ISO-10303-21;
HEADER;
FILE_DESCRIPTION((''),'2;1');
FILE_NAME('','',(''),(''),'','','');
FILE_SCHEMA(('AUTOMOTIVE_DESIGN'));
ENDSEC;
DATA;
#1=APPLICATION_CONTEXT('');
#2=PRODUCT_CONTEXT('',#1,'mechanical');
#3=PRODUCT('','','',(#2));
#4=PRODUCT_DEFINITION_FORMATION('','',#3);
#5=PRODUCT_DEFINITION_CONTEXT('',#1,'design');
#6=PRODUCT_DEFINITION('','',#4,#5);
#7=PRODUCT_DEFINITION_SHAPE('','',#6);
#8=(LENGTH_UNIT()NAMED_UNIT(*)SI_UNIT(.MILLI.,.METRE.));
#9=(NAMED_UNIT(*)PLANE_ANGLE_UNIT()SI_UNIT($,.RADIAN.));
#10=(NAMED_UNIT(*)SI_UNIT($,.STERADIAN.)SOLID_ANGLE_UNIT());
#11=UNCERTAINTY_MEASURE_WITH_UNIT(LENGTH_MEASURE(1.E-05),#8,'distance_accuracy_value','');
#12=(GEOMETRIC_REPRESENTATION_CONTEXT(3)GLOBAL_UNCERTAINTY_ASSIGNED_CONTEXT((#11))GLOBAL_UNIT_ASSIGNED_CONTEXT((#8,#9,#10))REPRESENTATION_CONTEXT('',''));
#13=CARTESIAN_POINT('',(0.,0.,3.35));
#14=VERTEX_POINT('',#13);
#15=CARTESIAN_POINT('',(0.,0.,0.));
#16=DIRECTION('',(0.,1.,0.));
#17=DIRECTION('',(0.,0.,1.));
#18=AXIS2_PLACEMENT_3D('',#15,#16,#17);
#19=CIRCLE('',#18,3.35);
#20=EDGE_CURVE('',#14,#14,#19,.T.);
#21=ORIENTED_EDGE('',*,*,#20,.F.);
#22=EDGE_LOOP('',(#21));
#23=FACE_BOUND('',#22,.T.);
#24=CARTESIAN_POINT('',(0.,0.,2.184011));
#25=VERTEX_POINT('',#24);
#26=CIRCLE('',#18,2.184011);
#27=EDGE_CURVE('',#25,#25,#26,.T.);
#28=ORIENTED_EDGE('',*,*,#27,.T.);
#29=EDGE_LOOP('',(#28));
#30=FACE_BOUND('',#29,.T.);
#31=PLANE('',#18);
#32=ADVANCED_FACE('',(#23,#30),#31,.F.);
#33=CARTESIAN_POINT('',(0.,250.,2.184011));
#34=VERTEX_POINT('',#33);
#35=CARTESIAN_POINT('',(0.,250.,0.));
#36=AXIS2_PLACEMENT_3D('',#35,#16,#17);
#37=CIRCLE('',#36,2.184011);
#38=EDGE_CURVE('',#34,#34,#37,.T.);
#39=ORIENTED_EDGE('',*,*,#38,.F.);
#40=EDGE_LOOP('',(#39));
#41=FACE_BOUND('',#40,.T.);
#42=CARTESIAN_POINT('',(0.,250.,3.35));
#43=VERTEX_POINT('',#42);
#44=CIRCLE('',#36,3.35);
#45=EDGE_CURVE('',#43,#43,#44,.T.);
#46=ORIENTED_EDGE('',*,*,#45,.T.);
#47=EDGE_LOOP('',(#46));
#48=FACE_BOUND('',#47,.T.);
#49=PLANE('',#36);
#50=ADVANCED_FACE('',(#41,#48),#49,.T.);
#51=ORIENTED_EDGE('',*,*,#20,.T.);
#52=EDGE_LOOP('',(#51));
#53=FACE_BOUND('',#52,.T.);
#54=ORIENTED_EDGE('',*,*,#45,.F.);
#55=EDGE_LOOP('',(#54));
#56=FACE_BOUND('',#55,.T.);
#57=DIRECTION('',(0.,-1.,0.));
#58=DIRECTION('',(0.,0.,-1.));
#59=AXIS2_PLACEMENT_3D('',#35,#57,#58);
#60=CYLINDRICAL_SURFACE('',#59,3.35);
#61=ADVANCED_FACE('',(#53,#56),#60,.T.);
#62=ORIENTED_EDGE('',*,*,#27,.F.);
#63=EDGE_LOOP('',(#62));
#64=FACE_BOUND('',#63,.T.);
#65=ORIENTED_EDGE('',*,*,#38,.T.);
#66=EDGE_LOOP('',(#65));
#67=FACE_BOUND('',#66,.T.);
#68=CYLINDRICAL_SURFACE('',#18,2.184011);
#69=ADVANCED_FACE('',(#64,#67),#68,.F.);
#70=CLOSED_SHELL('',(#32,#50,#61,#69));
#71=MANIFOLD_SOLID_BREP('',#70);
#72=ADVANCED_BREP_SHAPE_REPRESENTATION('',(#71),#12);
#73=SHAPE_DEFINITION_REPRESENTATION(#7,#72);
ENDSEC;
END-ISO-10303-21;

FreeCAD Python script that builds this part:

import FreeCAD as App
import Part
import Sketcher
Q = App.Units.Quantity

doc = App.newDocument("Part")
body = doc.addObject("PartDesign::Body", "Body")

# Sketch on XZ plane
sketch1 = body.newObject("Sketcher::SketchObject", "Sketch")
sketch1.AttachmentSupport = (doc.getObject("XZ_Plane"), [""])
sketch1.MapMode = "FlatFace"
sketch1.addGeometry(Part.Circle(App.Vector(0, 0, 0), App.Vector(0, 0, 1), 3.4), False)
sketch1.addConstraint([
    Sketcher.Constraint("Coincident", 0, 3, -1, 1),
    Sketcher.Constraint("Diameter", 0, Q("6.7 mm")),
])
pad1 = body.newObject("PartDesign::Pad", "Pad")
pad1.Profile = sketch1
pad1.Length = 250
pad1.Reversed = True

# Sketch on XZ plane
sketch2 = body.newObject("Sketcher::SketchObject", "Sketch001")
sketch2.AttachmentSupport = (doc.getObject("XZ_Plane"), [""])
sketch2.MapMode = "FlatFace"
sketch2.AttachmentOffset = App.Placement(App.Vector(0, 0, -250), App.Rotation())
sketch2.addGeometry(Part.Circle(App.Vector(0, 0, 0), App.Vector(0, 0, 1), 2.2), False)
sketch2.addConstraint([
    Sketcher.Constraint("Coincident", 0, 3, -1, 1),
    Sketcher.Constraint("Diameter", 0, Q("4.368023 mm")),
])
pocket1 = body.newObject("PartDesign::Pocket", "Pocket")
pocket1.Profile = sketch2
pocket1.Type = "ThroughAll"
pocket1.Reversed = True

doc.recompute()
